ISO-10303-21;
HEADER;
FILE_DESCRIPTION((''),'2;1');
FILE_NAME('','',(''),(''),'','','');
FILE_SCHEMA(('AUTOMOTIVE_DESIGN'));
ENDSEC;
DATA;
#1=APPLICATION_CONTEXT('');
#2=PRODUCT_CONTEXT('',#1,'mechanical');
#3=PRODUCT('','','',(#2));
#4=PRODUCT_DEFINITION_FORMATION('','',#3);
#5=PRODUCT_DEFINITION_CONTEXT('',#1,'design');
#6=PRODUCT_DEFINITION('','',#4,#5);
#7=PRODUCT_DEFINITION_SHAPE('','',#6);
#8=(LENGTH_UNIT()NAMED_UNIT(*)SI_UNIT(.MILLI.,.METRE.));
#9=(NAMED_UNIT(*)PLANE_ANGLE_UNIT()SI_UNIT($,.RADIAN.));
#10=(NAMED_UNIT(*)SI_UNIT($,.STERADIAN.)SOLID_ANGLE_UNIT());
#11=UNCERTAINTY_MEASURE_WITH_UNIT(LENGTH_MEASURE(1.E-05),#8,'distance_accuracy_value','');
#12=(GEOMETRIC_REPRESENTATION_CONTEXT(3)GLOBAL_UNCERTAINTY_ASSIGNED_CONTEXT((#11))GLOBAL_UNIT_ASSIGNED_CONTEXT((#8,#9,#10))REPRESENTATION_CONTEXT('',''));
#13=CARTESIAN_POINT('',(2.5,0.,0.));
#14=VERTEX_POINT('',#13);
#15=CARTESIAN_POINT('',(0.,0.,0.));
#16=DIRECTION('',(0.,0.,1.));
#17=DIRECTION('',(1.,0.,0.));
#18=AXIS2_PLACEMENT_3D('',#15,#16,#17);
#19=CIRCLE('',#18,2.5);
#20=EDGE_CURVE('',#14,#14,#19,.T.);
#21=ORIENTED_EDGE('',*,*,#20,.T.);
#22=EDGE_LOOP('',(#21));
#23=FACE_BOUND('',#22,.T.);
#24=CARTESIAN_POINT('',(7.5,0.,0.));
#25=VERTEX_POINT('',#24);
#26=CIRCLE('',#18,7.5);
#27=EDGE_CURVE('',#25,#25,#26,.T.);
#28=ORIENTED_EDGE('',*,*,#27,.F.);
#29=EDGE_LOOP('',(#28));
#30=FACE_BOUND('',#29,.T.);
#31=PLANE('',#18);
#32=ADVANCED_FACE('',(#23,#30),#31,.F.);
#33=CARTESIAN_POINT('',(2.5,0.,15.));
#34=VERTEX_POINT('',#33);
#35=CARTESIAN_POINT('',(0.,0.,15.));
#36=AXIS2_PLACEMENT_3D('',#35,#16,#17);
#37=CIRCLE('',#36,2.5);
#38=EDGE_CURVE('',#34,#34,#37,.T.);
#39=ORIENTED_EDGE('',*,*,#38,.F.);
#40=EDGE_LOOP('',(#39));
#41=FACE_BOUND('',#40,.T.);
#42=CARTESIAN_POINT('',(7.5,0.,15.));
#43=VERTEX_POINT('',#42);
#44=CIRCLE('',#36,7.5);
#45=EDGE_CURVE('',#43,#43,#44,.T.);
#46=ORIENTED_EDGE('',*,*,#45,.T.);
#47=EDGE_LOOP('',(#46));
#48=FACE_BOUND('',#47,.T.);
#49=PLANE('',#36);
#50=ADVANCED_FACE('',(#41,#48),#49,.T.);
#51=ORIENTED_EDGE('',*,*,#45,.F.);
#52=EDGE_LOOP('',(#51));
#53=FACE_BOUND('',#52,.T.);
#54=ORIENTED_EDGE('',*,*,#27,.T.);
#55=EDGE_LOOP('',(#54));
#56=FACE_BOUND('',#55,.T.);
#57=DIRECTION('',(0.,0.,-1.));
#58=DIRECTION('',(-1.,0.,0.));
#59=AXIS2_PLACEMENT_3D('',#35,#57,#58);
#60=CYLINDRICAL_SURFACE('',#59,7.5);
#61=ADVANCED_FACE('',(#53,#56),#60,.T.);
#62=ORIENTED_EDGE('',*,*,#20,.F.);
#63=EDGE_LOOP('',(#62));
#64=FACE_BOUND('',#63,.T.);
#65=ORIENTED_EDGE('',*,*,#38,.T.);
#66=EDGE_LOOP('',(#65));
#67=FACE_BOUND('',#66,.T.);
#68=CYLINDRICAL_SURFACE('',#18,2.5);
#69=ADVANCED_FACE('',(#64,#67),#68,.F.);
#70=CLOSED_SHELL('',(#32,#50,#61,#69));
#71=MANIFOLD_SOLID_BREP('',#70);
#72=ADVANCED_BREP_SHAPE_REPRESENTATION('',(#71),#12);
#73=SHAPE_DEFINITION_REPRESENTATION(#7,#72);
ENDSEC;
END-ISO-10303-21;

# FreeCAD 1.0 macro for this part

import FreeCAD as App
import Part
import Sketcher
from FreeCAD import Vector

doc = App.newDocument("Part")
body = doc.addObject("PartDesign::Body", "Body")

# Sketch on XY plane
sketch1 = body.newObject("Sketcher::SketchObject", "Sketch")
sketch1.AttachmentSupport = (doc.getObject("XY_Plane"), [""])
sketch1.MapMode = "FlatFace"
sketch1.addGeometry(Part.Circle(Vector(0, 0, 0), Vector(0, 0, 1), 7.5), False)
sketch1.addConstraint(Sketcher.Constraint("Coincident", 0, 3, -1, 1))
sketch1.addConstraint(Sketcher.Constraint("Diameter", 0, 15.0))
pad1 = body.newObject("PartDesign::Pad", "Pad")
pad1.Profile = sketch1
pad1.Length = 15

# Sketch on XY plane
sketch2 = body.newObject("Sketcher::SketchObject", "Sketch001")
sketch2.AttachmentSupport = (doc.getObject("XY_Plane"), [""])
sketch2.MapMode = "FlatFace"
sketch2.AttachmentOffset = App.Placement(Vector(0, 0, 15), App.Rotation())
sketch2.addGeometry(Part.Circle(Vector(0, 0, 0), Vector(0, 0, 1), 2.5), False)
sketch2.addConstraint(Sketcher.Constraint("Coincident", 0, 3, -1, 1))
sketch2.addConstraint(Sketcher.Constraint("Diameter", 0, 5.0))
pocket1 = body.newObject("PartDesign::Pocket", "Pocket")
pocket1.Profile = sketch2
pocket1.Type = "ThroughAll"

doc.recompute()
